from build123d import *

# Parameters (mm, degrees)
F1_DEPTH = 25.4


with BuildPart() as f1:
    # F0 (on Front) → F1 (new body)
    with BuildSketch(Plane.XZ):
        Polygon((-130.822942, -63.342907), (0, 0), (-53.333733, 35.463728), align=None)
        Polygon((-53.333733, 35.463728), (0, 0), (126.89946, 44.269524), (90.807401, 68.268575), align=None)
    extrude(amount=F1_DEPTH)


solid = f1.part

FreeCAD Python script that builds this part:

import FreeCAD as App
import Part
import Sketcher

V = App.Vector
Q = App.Units.Quantity


def add_polygon(sketch, points):
    """Adds a closed chain of lines whose ends are joined by coincident constraints."""
    first, n = sketch.GeometryCount, len(points)
    for a, b in zip(points, points[1:] + points[:1]):
        sketch.addGeometry(Part.LineSegment(App.Vector(*a, 0), App.Vector(*b, 0)), False)
    for i in range(n):
        sketch.addConstraint(Sketcher.Constraint("Coincident", first + i, 2, first + (i + 1) % n, 1))

doc = App.newDocument("Part")
body = doc.addObject("PartDesign::Body", "Body")

# Sketch on XZ plane
sketch1 = body.newObject("Sketcher::SketchObject", "Sketch")
sketch1.AttachmentSupport = (doc.getObject("XZ_Plane"), [""])
sketch1.MapMode = "FlatFace"
add_polygon(sketch1, [(-131, -63), (0, 0), (127, 44), (91, 68), (-53, 35)])  # lines 0-4
sketch1.addConstraint(Sketcher.Constraint("Coincident", 0, 2, -1, 1))
sketch1.addConstraint(Sketcher.Constraint("DistanceX", -1, 1, 2, 2, 90.807401))
sketch1.addConstraint(Sketcher.Constraint("DistanceX", 4, 2, 1, 2, 257.722402))
sketch1.addConstraint(Sketcher.Constraint("Distance", 0, 145.351182))
sketch1.addConstraint(Sketcher.Constraint("Distance", 1, 134.399642))
sketch1.addConstraint(Sketcher.Constraint("Distance", 3, 147.827009))
sketch1.addConstraint(Sketcher.Constraint("DistanceX", -1, 1, 1, 2, 126.89946))
sketch1.addConstraint(Sketcher.Constraint("DistanceY", -1, 1, 3, 2, 35.463728))
sketch1.addConstraint(Sketcher.Constraint("DistanceY", 1, 2, 2, 2, 23.999051))
pad1 = body.newObject("PartDesign::Pad", "Pad")
pad1.Profile = sketch1
pad1.Length = Q("1 in")

doc.recompute()
